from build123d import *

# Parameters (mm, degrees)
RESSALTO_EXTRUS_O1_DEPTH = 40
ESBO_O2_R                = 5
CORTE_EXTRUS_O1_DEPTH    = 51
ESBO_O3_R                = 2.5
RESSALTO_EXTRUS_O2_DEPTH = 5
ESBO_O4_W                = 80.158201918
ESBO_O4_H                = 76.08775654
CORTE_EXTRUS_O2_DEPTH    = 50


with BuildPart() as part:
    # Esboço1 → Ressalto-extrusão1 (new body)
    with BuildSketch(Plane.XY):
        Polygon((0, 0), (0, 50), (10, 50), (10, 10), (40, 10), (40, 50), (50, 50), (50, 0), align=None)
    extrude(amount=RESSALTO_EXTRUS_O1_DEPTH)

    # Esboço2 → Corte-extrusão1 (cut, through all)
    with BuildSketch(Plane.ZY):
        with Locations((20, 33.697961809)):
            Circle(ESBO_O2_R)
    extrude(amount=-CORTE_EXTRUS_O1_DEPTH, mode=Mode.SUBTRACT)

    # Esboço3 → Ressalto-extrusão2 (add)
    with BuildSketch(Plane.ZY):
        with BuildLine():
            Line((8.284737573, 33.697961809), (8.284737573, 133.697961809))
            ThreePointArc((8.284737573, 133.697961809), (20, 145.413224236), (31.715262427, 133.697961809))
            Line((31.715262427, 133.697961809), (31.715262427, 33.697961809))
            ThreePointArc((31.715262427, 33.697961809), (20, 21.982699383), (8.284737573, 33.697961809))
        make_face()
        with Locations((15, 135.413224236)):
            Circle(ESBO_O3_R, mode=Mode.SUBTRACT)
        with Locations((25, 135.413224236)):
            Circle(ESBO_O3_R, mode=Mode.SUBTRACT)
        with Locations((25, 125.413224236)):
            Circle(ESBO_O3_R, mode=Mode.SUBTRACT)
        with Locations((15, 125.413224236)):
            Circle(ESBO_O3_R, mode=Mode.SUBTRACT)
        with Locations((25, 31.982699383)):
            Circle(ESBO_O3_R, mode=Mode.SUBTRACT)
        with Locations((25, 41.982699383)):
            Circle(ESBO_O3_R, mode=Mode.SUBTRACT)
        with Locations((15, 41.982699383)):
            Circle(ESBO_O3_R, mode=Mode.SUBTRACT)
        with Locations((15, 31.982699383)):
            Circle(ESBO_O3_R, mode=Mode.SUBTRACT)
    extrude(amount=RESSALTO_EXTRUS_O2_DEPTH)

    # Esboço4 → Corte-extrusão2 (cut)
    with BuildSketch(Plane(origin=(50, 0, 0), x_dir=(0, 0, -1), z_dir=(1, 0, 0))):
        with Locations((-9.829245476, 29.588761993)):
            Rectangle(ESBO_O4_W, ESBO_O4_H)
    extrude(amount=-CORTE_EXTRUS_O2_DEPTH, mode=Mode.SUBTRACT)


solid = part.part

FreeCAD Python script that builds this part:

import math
import FreeCAD as App
import Part
import Sketcher
Q = App.Units.Quantity

doc = App.newDocument("Part")
body = doc.addObject("PartDesign::Body", "Body")

# Sketch on XY plane
sketch1 = body.newObject("Sketcher::SketchObject", "Sketch")
sketch1.AttachmentSupport = (doc.getObject("XY_Plane"), [""])
sketch1.MapMode = "FlatFace"
sketch1.addGeometry([
    Part.LineSegment(App.Vector(0, 50, 0), App.Vector(0, 0, 0)),  # 0
    Part.LineSegment(App.Vector(0, 0, 0), App.Vector(50, 0, 0)),  # 1
    Part.LineSegment(App.Vector(50, 0, 0), App.Vector(50, 50, 0)),  # 2
    Part.LineSegment(App.Vector(50, 50, 0), App.Vector(40, 50, 0)),  # 3
    Part.LineSegment(App.Vector(40, 50, 0), App.Vector(40, 10, 0)),  # 4
    Part.LineSegment(App.Vector(40, 10, 0), App.Vector(10, 10, 0)),  # 5
    Part.LineSegment(App.Vector(10, 10, 0), App.Vector(10, 50, 0)),  # 6
    Part.LineSegment(App.Vector(10, 50, 0), App.Vector(0, 50, 0)),  # 7
], False)
sketch1.addConstraint([
    Sketcher.Constraint("Coincident", 0, 2, 1, 1),
    Sketcher.Constraint("Coincident", 1, 2, 2, 1),
    Sketcher.Constraint("Coincident", 2, 2, 3, 1),
    Sketcher.Constraint("Coincident", 3, 2, 4, 1),
    Sketcher.Constraint("Coincident", 4, 2, 5, 1),
    Sketcher.Constraint("Coincident", 5, 2, 6, 1),
    Sketcher.Constraint("Coincident", 6, 2, 7, 1),
    Sketcher.Constraint("Coincident", 7, 2, 0, 1),
    Sketcher.Constraint("Vertical", 0),
    Sketcher.Constraint("Horizontal", 1),
    Sketcher.Constraint("Vertical", 2),
    Sketcher.Constraint("Horizontal", 3),
    Sketcher.Constraint("Vertical", 4),
    Sketcher.Constraint("Horizontal", 5),
    Sketcher.Constraint("Vertical", 6),
    Sketcher.Constraint("Horizontal", 7),
    Sketcher.Constraint("Coincident", 0, 2, -1, 1),
    Sketcher.Constraint("Horizontal", 3, 2, 6, 2),
    Sketcher.Constraint("Equal", 3, 7),
    Sketcher.Constraint("Equal", 1, 0),
    Sketcher.Constraint("DistanceX", 1, 1, 1, 2, Q("50 mm")),
    Sketcher.Constraint("DistanceX", 3, 2, 3, 1, Q("10 mm")),
    Sketcher.Constraint("DistanceY", 4, 2, 4, 1, Q("40 mm")),
])
pad1 = body.newObject("PartDesign::Pad", "Pad")
pad1.Profile = sketch1
pad1.Length = 40

# Sketch on YZ plane
sketch2 = body.newObject("Sketcher::SketchObject", "Sketch001")
sketch2.AttachmentSupport = (doc.getObject("YZ_Plane"), [""])
sketch2.MapMode = "FlatFace"
sketch2.addGeometry(Part.Circle(App.Vector(34, 20, 0), App.Vector(0, 0, 1), 5), False)
sketch2.addConstraint([
    Sketcher.Constraint("Diameter", 0, Q("10 mm")),
    Sketcher.Constraint("DistanceY", -1, 1, 0, 3, Q("20 mm")),
    Sketcher.Constraint("DistanceX", -1, 1, 0, 3, Q("33.697962 mm")),
])
pocket1 = body.newObject("PartDesign::Pocket", "Pocket")
pocket1.Profile = sketch2
pocket1.Type = "ThroughAll"
pocket1.Reversed = True

# Sketch on YZ plane
sketch3 = body.newObject("Sketcher::SketchObject", "Sketch002")
sketch3.AttachmentSupport = (doc.getObject("YZ_Plane"), [""])
sketch3.MapMode = "FlatFace"
sketch3.addGeometry([
    Part.LineSegment(App.Vector(133.7, 8.3, 0), App.Vector(33.7, 8.3, 0)),  # 0
    Part.ArcOfCircle(Part.Circle(App.Vector(33.7, 20, 0), App.Vector(0, 0, 1), 11.7), math.radians(90), math.radians(270)),  # 1
    Part.LineSegment(App.Vector(33.7, 31.7, 0), App.Vector(133.7, 31.7, 0)),  # 2
    Part.ArcOfCircle(Part.Circle(App.Vector(133.7, 20, 0), App.Vector(0, 0, 1), 11.7), math.radians(-90), math.radians(90)),  # 3
    Part.Circle(App.Vector(32, 25, 0), App.Vector(0, 0, 1), 2.5),  # 4
    Part.Circle(App.Vector(42, 25, 0), App.Vector(0, 0, 1), 2.5),  # 5
    Part.Circle(App.Vector(32, 15, 0), App.Vector(0, 0, 1), 2.5),  # 6
    Part.Circle(App.Vector(42, 15, 0), App.Vector(0, 0, 1), 2.5),  # 7
    Part.Circle(App.Vector(125.4, 25, 0), App.Vector(0, 0, 1), 2.5),  # 8
    Part.Circle(App.Vector(135.4, 25, 0), App.Vector(0, 0, 1), 2.5),  # 9
    Part.Circle(App.Vector(125.4, 15, 0), App.Vector(0, 0, 1), 2.5),  # 10
    Part.Circle(App.Vector(135.4, 15, 0), App.Vector(0, 0, 1), 2.5),  # 11
], False)
sketch3.addConstraint([
    Sketcher.Constraint("Tangent", 0, 2, 1, 2),
    Sketcher.Constraint("Tangent", 1, 1, 2, 1),
    Sketcher.Constraint("Tangent", 2, 2, 3, 2),
    Sketcher.Constraint("Tangent", 3, 1, 0, 1),
    Sketcher.Constraint("Horizontal", 0),
    Sketcher.Constraint("Horizontal", 2),
    Sketcher.Constraint("Equal", 4, 5),
    Sketcher.Constraint("Equal", 5, 6),
    Sketcher.Constraint("Equal", 6, 7),
    Sketcher.Constraint("Equal", 7, 8),
    Sketcher.Constraint("Equal", 8, 9),
    Sketcher.Constraint("Equal", 9, 10),
    Sketcher.Constraint("Equal", 10, 11),
    Sketcher.Constraint("Horizontal", 4, 3, 5, 3),
    Sketcher.Constraint("Horizontal", 6, 3, 7, 3),
    Sketcher.Constraint("Horizontal", 5, 3, 8, 3),
    Sketcher.Constraint("Horizontal", 8, 3, 9, 3),
    Sketcher.Constraint("Horizontal", 7, 3, 10, 3),
    Sketcher.Constraint("Horizontal", 10, 3, 11, 3),
    Sketcher.Constraint("Vertical", 4, 3, 6, 3),
    Sketcher.Constraint("Vertical", 5, 3, 7, 3),
    Sketcher.Constraint("Vertical", 8, 3, 10, 3),
    Sketcher.Constraint("Vertical", 9, 3, 11, 3),
    Sketcher.Constraint("Diameter", 4, Q("5 mm")),
    Sketcher.Constraint("DistanceX", 0, 2, 0, 1, Q("100 mm")),
    Sketcher.Constraint("DistanceY", -1, 1, 1, 3, Q("20 mm")),
    Sketcher.Constraint("DistanceY", -1, 1, 4, 3, Q("25 mm")),
    Sketcher.Constraint("DistanceY", -1, 1, 6, 3, Q("15 mm")),
    Sketcher.Constraint("DistanceX", 4, 3, 5, 3, Q("10 mm")),
    Sketcher.Constraint("DistanceX", 8, 3, 9, 3, Q("10 mm")),
    Sketcher.Constraint("Radius", 1, Q("11.715262 mm")),
    Sketcher.Constraint("DistanceX", -1, 1, 4, 3, Q("31.982699 mm")),
    Sketcher.Constraint("DistanceX", -1, 1, 1, 3, Q("33.697962 mm")),
    Sketcher.Constraint("DistanceX", -1, 1, 8, 3, Q("125.413224 mm")),
])
pad2 = body.newObject("PartDesign::Pad", "Pad001")
pad2.Profile = sketch3
pad2.Length = 5
pad2.Reversed = True

# Sketch on YZ plane
sketch4 = body.newObject("Sketcher::SketchObject", "Sketch003")
sketch4.AttachmentSupport = (doc.getObject("YZ_Plane"), [""])
sketch4.MapMode = "FlatFace"
sketch4.AttachmentOffset = App.Placement(App.Vector(0, 0, 50), App.Rotation())
sketch4.addGeometry([
    Part.LineSegment(App.Vector(68, 50, 0), App.Vector(-8, 50, 0)),
    Part.LineSegment(App.Vector(-8, 50, 0), App.Vector(-8, -30, 0)),
    Part.LineSegment(App.Vector(-8, -30, 0), App.Vector(68, -30, 0)),
    Part.LineSegment(App.Vector(68, -30, 0), App.Vector(68, 50, 0)),
], False)
sketch4.addConstraint([
    Sketcher.Constraint("Coincident", 0, 2, 1, 1),
    Sketcher.Constraint("Coincident", 1, 2, 2, 1),
    Sketcher.Constraint("Coincident", 2, 2, 3, 1),
    Sketcher.Constraint("Coincident", 3, 2, 0, 1),
    Sketcher.Constraint("Horizontal", 0),
    Sketcher.Constraint("Vertical", 1),
    Sketcher.Constraint("Horizontal", 2),
    Sketcher.Constraint("Vertical", 3),
    Sketcher.Constraint("DistanceY", 1, 2, 1, 1, Q("80.158202 mm")),
    Sketcher.Constraint("DistanceX", 0, 2, 0, 1, Q("76.087757 mm")),
    Sketcher.Constraint("DistanceX", -1, 1, 2, 2, Q("67.63264 mm")),
    Sketcher.Constraint("DistanceY", -1, 1, 0, 2, Q("49.908346 mm")),
])
pocket2 = body.newObject("PartDesign::Pocket", "Pocket001")
pocket2.Profile = sketch4
pocket2.Length = 50

doc.recompute()
